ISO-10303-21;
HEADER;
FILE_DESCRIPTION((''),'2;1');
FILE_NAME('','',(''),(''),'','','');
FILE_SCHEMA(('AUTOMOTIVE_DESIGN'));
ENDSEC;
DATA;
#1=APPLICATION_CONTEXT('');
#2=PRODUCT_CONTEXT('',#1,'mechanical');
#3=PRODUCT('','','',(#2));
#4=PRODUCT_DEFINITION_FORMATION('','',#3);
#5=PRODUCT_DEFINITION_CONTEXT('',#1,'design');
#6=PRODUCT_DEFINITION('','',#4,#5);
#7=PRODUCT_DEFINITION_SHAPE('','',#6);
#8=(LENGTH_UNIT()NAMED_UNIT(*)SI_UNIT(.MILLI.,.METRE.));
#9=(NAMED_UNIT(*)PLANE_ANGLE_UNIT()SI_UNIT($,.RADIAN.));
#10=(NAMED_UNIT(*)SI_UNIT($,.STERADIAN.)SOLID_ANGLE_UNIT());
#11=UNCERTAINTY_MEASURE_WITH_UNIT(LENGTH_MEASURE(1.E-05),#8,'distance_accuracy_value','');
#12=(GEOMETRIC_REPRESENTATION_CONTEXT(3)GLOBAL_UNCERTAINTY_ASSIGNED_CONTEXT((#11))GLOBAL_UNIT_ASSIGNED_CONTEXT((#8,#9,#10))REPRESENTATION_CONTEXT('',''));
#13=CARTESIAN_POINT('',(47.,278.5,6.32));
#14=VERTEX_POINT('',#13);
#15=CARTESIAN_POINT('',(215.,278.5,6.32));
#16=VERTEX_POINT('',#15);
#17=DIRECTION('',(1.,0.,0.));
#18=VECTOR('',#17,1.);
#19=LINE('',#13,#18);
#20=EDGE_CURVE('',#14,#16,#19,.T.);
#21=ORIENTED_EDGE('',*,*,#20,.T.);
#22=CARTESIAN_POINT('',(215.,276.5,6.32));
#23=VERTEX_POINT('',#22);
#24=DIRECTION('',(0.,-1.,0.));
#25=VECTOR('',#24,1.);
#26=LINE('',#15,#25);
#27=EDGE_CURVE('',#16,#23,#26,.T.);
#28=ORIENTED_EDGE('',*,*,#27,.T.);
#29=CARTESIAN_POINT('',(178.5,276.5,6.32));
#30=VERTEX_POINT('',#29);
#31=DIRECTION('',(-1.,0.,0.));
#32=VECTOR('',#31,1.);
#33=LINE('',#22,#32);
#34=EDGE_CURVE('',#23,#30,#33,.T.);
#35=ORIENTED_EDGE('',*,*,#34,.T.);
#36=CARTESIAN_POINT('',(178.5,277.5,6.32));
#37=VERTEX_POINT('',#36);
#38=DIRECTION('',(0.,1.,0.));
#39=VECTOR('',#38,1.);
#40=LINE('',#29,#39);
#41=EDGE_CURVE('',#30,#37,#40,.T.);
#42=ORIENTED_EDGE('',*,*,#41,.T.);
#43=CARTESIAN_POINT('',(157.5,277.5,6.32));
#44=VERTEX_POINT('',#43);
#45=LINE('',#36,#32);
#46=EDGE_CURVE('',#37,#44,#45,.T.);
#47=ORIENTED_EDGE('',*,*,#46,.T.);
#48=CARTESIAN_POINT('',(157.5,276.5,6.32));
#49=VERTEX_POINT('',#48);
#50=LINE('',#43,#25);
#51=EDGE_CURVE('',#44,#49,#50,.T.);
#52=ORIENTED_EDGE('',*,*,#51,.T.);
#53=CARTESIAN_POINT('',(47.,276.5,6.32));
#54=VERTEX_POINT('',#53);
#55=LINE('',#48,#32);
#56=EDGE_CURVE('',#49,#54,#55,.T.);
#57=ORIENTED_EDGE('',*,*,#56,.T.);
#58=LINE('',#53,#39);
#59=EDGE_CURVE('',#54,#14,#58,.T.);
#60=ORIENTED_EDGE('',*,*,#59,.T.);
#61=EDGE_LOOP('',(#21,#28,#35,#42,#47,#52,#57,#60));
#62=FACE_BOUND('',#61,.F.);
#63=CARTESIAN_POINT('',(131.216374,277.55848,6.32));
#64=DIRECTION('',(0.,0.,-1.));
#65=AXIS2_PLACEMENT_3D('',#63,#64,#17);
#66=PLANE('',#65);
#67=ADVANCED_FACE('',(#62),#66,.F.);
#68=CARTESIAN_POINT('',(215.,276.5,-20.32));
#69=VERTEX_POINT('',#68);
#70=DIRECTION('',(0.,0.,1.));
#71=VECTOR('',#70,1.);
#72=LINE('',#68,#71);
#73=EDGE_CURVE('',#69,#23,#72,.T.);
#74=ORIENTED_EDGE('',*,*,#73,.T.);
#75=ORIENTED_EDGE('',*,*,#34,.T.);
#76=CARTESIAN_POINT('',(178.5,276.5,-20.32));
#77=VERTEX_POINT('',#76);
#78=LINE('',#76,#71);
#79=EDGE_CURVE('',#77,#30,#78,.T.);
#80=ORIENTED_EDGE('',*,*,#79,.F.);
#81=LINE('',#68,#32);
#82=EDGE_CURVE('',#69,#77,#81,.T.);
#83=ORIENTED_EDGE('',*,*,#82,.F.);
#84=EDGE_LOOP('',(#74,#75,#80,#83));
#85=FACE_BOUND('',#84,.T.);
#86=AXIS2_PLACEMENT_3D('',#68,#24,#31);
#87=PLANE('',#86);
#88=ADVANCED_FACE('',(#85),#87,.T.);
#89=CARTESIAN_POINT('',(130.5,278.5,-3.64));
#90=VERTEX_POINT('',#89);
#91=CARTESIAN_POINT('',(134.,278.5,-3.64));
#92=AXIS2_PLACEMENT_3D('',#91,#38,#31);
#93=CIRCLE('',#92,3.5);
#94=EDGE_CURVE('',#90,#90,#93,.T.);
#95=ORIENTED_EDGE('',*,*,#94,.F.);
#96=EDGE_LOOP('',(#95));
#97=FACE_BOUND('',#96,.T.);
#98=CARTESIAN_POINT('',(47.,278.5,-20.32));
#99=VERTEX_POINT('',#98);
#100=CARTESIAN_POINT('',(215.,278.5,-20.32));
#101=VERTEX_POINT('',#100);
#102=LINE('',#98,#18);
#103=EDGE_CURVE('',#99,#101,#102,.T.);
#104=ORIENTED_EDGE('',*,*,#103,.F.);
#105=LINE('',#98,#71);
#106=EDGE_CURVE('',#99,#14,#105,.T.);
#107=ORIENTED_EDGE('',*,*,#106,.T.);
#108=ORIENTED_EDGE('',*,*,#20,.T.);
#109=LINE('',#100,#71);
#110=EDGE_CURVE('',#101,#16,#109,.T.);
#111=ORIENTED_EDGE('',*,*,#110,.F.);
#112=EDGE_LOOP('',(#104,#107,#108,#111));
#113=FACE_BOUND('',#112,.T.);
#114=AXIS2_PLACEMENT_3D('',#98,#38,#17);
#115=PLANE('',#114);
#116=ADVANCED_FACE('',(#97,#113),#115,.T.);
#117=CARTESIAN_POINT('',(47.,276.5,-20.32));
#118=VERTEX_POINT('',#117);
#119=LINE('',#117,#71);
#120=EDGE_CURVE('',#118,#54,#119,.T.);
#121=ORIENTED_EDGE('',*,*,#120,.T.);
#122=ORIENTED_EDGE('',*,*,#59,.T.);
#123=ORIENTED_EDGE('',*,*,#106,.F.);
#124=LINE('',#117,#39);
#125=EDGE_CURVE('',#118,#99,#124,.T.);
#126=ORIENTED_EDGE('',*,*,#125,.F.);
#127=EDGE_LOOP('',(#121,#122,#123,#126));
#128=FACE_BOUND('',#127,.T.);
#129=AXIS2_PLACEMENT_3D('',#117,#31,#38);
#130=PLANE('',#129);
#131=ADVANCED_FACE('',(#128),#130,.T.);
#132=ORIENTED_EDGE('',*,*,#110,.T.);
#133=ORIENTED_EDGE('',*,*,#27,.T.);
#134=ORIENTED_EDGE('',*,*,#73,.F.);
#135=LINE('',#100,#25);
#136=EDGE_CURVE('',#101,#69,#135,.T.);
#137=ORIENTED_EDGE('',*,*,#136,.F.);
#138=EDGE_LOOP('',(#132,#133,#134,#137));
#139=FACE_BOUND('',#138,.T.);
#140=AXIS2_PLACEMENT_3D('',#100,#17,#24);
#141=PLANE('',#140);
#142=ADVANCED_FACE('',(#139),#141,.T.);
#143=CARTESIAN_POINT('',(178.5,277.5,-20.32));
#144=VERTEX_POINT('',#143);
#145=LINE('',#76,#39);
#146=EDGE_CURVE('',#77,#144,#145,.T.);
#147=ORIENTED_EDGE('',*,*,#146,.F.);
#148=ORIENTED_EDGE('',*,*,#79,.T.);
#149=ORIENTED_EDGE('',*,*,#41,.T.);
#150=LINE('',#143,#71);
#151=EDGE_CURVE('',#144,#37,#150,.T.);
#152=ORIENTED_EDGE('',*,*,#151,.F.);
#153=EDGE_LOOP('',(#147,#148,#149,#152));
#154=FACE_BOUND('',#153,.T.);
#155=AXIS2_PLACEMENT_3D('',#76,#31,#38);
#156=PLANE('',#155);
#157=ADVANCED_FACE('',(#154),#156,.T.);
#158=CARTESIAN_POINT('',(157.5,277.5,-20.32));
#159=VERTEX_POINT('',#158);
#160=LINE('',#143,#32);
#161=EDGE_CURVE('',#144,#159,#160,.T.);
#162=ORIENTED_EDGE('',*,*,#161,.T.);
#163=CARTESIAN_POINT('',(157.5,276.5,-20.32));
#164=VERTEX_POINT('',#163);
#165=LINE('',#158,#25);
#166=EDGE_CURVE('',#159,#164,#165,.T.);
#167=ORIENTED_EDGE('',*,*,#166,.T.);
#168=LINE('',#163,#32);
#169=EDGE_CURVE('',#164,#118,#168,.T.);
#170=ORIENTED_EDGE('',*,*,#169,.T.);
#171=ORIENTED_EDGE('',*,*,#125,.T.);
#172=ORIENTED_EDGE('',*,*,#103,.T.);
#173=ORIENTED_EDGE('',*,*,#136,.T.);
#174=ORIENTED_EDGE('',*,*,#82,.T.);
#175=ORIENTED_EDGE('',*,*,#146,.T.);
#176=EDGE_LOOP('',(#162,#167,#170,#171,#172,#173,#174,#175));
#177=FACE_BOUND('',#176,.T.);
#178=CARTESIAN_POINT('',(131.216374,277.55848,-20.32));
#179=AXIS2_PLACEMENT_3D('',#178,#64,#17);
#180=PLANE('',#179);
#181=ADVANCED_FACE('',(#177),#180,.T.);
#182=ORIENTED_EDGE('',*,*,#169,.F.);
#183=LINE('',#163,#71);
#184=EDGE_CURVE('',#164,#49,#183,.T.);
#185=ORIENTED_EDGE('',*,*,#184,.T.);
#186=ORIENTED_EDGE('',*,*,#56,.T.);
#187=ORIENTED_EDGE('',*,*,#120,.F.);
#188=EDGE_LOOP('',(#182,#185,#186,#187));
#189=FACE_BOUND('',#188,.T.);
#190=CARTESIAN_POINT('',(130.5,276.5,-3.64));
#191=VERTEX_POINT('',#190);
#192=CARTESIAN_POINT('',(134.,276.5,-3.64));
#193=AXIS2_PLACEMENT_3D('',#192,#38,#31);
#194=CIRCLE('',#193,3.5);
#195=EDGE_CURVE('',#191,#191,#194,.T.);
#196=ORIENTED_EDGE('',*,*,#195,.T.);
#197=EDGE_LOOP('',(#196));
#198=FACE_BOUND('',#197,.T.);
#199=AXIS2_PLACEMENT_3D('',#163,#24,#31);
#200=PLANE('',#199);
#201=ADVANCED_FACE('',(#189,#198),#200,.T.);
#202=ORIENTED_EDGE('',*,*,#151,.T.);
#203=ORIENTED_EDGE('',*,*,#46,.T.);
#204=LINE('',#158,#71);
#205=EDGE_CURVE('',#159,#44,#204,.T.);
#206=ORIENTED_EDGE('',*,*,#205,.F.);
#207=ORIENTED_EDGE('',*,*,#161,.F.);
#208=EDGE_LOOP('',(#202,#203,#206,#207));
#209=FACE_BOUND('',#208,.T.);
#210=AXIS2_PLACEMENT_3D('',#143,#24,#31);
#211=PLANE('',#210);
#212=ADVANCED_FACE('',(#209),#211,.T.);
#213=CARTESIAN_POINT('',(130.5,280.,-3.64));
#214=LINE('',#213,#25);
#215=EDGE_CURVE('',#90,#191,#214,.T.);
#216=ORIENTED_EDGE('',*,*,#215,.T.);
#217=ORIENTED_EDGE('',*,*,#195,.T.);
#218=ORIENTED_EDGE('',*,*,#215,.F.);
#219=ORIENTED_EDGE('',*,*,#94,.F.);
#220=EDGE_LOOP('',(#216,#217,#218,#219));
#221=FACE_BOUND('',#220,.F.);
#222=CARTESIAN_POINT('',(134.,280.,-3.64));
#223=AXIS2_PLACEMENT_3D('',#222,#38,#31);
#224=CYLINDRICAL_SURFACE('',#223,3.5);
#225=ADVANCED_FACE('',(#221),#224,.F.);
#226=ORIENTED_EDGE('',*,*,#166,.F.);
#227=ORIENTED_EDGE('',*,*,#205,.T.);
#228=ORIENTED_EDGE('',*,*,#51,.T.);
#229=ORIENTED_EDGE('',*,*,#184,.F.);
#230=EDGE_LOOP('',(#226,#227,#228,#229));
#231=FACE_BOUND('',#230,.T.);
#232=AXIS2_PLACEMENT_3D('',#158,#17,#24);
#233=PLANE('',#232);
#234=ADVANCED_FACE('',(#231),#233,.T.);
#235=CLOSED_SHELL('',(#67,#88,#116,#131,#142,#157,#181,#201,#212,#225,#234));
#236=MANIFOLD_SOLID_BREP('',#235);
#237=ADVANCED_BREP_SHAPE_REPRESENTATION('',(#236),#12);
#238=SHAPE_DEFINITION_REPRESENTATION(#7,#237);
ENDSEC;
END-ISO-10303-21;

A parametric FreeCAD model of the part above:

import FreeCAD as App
import Part
import Sketcher
from FreeCAD import Vector
Q = App.Units.Quantity

doc = App.newDocument("Part")
body = doc.addObject("PartDesign::Body", "Body")

sketch1 = body.newObject("Sketcher::SketchObject", "Sketch")
sketch1.AttachmentSupport = (doc.getObject("XZ_Plane"), [""])
sketch1.MapMode = "FlatFace"
sketch1.AttachmentOffset = App.Placement(Vector(0, 0, -280), App.Rotation())
sketch1.addGeometry(Part.Circle(Vector(134, -3.6, 0), Vector(0, 0, 1), 3.5), False)
sketch1.addConstraint(Sketcher.Constraint("Diameter", 0, Q("7 mm")))
sketch1.addConstraint(Sketcher.Constraint("DistanceX", -1, 1, 0, 3, Q("134 mm")))
sketch1.addConstraint(Sketcher.Constraint("DistanceY", 0, 3, -1, 1, Q("3.64 mm")))
pad1 = body.newObject("PartDesign::Pad", "Pad")
pad1.Profile = sketch1
pad1.Length = 10
body2 = doc.addObject("PartDesign::Body", "Body001")

sketch2 = body2.newObject("Sketcher::SketchObject", "Sketch001")
sketch2.AttachmentSupport = (doc.getObject("XY_Plane001"), [""])
sketch2.MapMode = "FlatFace"
sketch2.AttachmentOffset = App.Placement(Vector(0, 0, -20.32), App.Rotation())
sketch2.addGeometry(Part.LineSegment(Vector(47, 278.5, 0), Vector(215, 278.5, 0)), False)
sketch2.addGeometry(Part.LineSegment(Vector(215, 278.5, 0), Vector(215, 276.5, 0)), False)
sketch2.addGeometry(Part.LineSegment(Vector(215, 276.5, 0), Vector(178.5, 276.5, 0)), False)
sketch2.addGeometry(Part.LineSegment(Vector(178.5, 276.5, 0), Vector(178.5, 277.5, 0)), False)
sketch2.addGeometry(Part.LineSegment(Vector(178.5, 277.5, 0), Vector(157.5, 277.5, 0)), False)
sketch2.addGeometry(Part.LineSegment(Vector(157.5, 277.5, 0), Vector(157.5, 276.5, 0)), False)
sketch2.addGeometry(Part.LineSegment(Vector(157.5, 276.5, 0), Vector(47, 276.5, 0)), False)
sketch2.addGeometry(Part.LineSegment(Vector(47, 276.5, 0), Vector(47, 278.5, 0)), False)
sketch2.addConstraint(Sketcher.Constraint("Coincident", 0, 2, 1, 1))
sketch2.addConstraint(Sketcher.Constraint("Coincident", 1, 2, 2, 1))
sketch2.addConstraint(Sketcher.Constraint("Coincident", 2, 2, 3, 1))
sketch2.addConstraint(Sketcher.Constraint("Coincident", 3, 2, 4, 1))
sketch2.addConstraint(Sketcher.Constraint("Coincident", 4, 2, 5, 1))
sketch2.addConstraint(Sketcher.Constraint("Coincident", 5, 2, 6, 1))
sketch2.addConstraint(Sketcher.Constraint("Coincident", 6, 2, 7, 1))
sketch2.addConstraint(Sketcher.Constraint("Coincident", 7, 2, 0, 1))
sketch2.addConstraint(Sketcher.Constraint("Horizontal", 0))
sketch2.addConstraint(Sketcher.Constraint("Vertical", 1))
sketch2.addConstraint(Sketcher.Constraint("Horizontal", 2))
sketch2.addConstraint(Sketcher.Constraint("Vertical", 3))
sketch2.addConstraint(Sketcher.Constraint("Horizontal", 4))
sketch2.addConstraint(Sketcher.Constraint("Vertical", 5))
sketch2.addConstraint(Sketcher.Constraint("Horizontal", 6))
sketch2.addConstraint(Sketcher.Constraint("Vertical", 7))
sketch2.addConstraint(Sketcher.Constraint("Horizontal", 2, 2, 5, 2))
sketch2.addConstraint(Sketcher.Constraint("DistanceX", 0, 1, 0, 2, Q("168 mm")))
sketch2.addConstraint(Sketcher.Constraint("DistanceX", 4, 2, 4, 1, Q("21 mm")))
sketch2.addConstraint(Sketcher.Constraint("DistanceY", 1, 2, 1, 1, Q("2 mm")))
sketch2.addConstraint(Sketcher.Constraint("DistanceY", 3, 1, 3, 2, Q("1 mm")))
sketch2.addConstraint(Sketcher.Constraint("DistanceX", 2, 2, 2, 1, Q("36.5 mm")))
sketch2.addConstraint(Sketcher.Constraint("DistanceX", -1, 1, 0, 2, Q("215 mm")))
sketch2.addConstraint(Sketcher.Constraint("DistanceY", -1, 1, 0, 2, Q("278.5 mm")))
pad2 = body2.newObject("PartDesign::Pad", "Pad001")
pad2.Profile = sketch2
pad2.Length = 26.64
doc.recompute()

boolean = body2.newObject("PartDesign::Boolean", "Boolean")
boolean.Type = "Cut"
boolean.addObjects([body])

doc.recompute()
